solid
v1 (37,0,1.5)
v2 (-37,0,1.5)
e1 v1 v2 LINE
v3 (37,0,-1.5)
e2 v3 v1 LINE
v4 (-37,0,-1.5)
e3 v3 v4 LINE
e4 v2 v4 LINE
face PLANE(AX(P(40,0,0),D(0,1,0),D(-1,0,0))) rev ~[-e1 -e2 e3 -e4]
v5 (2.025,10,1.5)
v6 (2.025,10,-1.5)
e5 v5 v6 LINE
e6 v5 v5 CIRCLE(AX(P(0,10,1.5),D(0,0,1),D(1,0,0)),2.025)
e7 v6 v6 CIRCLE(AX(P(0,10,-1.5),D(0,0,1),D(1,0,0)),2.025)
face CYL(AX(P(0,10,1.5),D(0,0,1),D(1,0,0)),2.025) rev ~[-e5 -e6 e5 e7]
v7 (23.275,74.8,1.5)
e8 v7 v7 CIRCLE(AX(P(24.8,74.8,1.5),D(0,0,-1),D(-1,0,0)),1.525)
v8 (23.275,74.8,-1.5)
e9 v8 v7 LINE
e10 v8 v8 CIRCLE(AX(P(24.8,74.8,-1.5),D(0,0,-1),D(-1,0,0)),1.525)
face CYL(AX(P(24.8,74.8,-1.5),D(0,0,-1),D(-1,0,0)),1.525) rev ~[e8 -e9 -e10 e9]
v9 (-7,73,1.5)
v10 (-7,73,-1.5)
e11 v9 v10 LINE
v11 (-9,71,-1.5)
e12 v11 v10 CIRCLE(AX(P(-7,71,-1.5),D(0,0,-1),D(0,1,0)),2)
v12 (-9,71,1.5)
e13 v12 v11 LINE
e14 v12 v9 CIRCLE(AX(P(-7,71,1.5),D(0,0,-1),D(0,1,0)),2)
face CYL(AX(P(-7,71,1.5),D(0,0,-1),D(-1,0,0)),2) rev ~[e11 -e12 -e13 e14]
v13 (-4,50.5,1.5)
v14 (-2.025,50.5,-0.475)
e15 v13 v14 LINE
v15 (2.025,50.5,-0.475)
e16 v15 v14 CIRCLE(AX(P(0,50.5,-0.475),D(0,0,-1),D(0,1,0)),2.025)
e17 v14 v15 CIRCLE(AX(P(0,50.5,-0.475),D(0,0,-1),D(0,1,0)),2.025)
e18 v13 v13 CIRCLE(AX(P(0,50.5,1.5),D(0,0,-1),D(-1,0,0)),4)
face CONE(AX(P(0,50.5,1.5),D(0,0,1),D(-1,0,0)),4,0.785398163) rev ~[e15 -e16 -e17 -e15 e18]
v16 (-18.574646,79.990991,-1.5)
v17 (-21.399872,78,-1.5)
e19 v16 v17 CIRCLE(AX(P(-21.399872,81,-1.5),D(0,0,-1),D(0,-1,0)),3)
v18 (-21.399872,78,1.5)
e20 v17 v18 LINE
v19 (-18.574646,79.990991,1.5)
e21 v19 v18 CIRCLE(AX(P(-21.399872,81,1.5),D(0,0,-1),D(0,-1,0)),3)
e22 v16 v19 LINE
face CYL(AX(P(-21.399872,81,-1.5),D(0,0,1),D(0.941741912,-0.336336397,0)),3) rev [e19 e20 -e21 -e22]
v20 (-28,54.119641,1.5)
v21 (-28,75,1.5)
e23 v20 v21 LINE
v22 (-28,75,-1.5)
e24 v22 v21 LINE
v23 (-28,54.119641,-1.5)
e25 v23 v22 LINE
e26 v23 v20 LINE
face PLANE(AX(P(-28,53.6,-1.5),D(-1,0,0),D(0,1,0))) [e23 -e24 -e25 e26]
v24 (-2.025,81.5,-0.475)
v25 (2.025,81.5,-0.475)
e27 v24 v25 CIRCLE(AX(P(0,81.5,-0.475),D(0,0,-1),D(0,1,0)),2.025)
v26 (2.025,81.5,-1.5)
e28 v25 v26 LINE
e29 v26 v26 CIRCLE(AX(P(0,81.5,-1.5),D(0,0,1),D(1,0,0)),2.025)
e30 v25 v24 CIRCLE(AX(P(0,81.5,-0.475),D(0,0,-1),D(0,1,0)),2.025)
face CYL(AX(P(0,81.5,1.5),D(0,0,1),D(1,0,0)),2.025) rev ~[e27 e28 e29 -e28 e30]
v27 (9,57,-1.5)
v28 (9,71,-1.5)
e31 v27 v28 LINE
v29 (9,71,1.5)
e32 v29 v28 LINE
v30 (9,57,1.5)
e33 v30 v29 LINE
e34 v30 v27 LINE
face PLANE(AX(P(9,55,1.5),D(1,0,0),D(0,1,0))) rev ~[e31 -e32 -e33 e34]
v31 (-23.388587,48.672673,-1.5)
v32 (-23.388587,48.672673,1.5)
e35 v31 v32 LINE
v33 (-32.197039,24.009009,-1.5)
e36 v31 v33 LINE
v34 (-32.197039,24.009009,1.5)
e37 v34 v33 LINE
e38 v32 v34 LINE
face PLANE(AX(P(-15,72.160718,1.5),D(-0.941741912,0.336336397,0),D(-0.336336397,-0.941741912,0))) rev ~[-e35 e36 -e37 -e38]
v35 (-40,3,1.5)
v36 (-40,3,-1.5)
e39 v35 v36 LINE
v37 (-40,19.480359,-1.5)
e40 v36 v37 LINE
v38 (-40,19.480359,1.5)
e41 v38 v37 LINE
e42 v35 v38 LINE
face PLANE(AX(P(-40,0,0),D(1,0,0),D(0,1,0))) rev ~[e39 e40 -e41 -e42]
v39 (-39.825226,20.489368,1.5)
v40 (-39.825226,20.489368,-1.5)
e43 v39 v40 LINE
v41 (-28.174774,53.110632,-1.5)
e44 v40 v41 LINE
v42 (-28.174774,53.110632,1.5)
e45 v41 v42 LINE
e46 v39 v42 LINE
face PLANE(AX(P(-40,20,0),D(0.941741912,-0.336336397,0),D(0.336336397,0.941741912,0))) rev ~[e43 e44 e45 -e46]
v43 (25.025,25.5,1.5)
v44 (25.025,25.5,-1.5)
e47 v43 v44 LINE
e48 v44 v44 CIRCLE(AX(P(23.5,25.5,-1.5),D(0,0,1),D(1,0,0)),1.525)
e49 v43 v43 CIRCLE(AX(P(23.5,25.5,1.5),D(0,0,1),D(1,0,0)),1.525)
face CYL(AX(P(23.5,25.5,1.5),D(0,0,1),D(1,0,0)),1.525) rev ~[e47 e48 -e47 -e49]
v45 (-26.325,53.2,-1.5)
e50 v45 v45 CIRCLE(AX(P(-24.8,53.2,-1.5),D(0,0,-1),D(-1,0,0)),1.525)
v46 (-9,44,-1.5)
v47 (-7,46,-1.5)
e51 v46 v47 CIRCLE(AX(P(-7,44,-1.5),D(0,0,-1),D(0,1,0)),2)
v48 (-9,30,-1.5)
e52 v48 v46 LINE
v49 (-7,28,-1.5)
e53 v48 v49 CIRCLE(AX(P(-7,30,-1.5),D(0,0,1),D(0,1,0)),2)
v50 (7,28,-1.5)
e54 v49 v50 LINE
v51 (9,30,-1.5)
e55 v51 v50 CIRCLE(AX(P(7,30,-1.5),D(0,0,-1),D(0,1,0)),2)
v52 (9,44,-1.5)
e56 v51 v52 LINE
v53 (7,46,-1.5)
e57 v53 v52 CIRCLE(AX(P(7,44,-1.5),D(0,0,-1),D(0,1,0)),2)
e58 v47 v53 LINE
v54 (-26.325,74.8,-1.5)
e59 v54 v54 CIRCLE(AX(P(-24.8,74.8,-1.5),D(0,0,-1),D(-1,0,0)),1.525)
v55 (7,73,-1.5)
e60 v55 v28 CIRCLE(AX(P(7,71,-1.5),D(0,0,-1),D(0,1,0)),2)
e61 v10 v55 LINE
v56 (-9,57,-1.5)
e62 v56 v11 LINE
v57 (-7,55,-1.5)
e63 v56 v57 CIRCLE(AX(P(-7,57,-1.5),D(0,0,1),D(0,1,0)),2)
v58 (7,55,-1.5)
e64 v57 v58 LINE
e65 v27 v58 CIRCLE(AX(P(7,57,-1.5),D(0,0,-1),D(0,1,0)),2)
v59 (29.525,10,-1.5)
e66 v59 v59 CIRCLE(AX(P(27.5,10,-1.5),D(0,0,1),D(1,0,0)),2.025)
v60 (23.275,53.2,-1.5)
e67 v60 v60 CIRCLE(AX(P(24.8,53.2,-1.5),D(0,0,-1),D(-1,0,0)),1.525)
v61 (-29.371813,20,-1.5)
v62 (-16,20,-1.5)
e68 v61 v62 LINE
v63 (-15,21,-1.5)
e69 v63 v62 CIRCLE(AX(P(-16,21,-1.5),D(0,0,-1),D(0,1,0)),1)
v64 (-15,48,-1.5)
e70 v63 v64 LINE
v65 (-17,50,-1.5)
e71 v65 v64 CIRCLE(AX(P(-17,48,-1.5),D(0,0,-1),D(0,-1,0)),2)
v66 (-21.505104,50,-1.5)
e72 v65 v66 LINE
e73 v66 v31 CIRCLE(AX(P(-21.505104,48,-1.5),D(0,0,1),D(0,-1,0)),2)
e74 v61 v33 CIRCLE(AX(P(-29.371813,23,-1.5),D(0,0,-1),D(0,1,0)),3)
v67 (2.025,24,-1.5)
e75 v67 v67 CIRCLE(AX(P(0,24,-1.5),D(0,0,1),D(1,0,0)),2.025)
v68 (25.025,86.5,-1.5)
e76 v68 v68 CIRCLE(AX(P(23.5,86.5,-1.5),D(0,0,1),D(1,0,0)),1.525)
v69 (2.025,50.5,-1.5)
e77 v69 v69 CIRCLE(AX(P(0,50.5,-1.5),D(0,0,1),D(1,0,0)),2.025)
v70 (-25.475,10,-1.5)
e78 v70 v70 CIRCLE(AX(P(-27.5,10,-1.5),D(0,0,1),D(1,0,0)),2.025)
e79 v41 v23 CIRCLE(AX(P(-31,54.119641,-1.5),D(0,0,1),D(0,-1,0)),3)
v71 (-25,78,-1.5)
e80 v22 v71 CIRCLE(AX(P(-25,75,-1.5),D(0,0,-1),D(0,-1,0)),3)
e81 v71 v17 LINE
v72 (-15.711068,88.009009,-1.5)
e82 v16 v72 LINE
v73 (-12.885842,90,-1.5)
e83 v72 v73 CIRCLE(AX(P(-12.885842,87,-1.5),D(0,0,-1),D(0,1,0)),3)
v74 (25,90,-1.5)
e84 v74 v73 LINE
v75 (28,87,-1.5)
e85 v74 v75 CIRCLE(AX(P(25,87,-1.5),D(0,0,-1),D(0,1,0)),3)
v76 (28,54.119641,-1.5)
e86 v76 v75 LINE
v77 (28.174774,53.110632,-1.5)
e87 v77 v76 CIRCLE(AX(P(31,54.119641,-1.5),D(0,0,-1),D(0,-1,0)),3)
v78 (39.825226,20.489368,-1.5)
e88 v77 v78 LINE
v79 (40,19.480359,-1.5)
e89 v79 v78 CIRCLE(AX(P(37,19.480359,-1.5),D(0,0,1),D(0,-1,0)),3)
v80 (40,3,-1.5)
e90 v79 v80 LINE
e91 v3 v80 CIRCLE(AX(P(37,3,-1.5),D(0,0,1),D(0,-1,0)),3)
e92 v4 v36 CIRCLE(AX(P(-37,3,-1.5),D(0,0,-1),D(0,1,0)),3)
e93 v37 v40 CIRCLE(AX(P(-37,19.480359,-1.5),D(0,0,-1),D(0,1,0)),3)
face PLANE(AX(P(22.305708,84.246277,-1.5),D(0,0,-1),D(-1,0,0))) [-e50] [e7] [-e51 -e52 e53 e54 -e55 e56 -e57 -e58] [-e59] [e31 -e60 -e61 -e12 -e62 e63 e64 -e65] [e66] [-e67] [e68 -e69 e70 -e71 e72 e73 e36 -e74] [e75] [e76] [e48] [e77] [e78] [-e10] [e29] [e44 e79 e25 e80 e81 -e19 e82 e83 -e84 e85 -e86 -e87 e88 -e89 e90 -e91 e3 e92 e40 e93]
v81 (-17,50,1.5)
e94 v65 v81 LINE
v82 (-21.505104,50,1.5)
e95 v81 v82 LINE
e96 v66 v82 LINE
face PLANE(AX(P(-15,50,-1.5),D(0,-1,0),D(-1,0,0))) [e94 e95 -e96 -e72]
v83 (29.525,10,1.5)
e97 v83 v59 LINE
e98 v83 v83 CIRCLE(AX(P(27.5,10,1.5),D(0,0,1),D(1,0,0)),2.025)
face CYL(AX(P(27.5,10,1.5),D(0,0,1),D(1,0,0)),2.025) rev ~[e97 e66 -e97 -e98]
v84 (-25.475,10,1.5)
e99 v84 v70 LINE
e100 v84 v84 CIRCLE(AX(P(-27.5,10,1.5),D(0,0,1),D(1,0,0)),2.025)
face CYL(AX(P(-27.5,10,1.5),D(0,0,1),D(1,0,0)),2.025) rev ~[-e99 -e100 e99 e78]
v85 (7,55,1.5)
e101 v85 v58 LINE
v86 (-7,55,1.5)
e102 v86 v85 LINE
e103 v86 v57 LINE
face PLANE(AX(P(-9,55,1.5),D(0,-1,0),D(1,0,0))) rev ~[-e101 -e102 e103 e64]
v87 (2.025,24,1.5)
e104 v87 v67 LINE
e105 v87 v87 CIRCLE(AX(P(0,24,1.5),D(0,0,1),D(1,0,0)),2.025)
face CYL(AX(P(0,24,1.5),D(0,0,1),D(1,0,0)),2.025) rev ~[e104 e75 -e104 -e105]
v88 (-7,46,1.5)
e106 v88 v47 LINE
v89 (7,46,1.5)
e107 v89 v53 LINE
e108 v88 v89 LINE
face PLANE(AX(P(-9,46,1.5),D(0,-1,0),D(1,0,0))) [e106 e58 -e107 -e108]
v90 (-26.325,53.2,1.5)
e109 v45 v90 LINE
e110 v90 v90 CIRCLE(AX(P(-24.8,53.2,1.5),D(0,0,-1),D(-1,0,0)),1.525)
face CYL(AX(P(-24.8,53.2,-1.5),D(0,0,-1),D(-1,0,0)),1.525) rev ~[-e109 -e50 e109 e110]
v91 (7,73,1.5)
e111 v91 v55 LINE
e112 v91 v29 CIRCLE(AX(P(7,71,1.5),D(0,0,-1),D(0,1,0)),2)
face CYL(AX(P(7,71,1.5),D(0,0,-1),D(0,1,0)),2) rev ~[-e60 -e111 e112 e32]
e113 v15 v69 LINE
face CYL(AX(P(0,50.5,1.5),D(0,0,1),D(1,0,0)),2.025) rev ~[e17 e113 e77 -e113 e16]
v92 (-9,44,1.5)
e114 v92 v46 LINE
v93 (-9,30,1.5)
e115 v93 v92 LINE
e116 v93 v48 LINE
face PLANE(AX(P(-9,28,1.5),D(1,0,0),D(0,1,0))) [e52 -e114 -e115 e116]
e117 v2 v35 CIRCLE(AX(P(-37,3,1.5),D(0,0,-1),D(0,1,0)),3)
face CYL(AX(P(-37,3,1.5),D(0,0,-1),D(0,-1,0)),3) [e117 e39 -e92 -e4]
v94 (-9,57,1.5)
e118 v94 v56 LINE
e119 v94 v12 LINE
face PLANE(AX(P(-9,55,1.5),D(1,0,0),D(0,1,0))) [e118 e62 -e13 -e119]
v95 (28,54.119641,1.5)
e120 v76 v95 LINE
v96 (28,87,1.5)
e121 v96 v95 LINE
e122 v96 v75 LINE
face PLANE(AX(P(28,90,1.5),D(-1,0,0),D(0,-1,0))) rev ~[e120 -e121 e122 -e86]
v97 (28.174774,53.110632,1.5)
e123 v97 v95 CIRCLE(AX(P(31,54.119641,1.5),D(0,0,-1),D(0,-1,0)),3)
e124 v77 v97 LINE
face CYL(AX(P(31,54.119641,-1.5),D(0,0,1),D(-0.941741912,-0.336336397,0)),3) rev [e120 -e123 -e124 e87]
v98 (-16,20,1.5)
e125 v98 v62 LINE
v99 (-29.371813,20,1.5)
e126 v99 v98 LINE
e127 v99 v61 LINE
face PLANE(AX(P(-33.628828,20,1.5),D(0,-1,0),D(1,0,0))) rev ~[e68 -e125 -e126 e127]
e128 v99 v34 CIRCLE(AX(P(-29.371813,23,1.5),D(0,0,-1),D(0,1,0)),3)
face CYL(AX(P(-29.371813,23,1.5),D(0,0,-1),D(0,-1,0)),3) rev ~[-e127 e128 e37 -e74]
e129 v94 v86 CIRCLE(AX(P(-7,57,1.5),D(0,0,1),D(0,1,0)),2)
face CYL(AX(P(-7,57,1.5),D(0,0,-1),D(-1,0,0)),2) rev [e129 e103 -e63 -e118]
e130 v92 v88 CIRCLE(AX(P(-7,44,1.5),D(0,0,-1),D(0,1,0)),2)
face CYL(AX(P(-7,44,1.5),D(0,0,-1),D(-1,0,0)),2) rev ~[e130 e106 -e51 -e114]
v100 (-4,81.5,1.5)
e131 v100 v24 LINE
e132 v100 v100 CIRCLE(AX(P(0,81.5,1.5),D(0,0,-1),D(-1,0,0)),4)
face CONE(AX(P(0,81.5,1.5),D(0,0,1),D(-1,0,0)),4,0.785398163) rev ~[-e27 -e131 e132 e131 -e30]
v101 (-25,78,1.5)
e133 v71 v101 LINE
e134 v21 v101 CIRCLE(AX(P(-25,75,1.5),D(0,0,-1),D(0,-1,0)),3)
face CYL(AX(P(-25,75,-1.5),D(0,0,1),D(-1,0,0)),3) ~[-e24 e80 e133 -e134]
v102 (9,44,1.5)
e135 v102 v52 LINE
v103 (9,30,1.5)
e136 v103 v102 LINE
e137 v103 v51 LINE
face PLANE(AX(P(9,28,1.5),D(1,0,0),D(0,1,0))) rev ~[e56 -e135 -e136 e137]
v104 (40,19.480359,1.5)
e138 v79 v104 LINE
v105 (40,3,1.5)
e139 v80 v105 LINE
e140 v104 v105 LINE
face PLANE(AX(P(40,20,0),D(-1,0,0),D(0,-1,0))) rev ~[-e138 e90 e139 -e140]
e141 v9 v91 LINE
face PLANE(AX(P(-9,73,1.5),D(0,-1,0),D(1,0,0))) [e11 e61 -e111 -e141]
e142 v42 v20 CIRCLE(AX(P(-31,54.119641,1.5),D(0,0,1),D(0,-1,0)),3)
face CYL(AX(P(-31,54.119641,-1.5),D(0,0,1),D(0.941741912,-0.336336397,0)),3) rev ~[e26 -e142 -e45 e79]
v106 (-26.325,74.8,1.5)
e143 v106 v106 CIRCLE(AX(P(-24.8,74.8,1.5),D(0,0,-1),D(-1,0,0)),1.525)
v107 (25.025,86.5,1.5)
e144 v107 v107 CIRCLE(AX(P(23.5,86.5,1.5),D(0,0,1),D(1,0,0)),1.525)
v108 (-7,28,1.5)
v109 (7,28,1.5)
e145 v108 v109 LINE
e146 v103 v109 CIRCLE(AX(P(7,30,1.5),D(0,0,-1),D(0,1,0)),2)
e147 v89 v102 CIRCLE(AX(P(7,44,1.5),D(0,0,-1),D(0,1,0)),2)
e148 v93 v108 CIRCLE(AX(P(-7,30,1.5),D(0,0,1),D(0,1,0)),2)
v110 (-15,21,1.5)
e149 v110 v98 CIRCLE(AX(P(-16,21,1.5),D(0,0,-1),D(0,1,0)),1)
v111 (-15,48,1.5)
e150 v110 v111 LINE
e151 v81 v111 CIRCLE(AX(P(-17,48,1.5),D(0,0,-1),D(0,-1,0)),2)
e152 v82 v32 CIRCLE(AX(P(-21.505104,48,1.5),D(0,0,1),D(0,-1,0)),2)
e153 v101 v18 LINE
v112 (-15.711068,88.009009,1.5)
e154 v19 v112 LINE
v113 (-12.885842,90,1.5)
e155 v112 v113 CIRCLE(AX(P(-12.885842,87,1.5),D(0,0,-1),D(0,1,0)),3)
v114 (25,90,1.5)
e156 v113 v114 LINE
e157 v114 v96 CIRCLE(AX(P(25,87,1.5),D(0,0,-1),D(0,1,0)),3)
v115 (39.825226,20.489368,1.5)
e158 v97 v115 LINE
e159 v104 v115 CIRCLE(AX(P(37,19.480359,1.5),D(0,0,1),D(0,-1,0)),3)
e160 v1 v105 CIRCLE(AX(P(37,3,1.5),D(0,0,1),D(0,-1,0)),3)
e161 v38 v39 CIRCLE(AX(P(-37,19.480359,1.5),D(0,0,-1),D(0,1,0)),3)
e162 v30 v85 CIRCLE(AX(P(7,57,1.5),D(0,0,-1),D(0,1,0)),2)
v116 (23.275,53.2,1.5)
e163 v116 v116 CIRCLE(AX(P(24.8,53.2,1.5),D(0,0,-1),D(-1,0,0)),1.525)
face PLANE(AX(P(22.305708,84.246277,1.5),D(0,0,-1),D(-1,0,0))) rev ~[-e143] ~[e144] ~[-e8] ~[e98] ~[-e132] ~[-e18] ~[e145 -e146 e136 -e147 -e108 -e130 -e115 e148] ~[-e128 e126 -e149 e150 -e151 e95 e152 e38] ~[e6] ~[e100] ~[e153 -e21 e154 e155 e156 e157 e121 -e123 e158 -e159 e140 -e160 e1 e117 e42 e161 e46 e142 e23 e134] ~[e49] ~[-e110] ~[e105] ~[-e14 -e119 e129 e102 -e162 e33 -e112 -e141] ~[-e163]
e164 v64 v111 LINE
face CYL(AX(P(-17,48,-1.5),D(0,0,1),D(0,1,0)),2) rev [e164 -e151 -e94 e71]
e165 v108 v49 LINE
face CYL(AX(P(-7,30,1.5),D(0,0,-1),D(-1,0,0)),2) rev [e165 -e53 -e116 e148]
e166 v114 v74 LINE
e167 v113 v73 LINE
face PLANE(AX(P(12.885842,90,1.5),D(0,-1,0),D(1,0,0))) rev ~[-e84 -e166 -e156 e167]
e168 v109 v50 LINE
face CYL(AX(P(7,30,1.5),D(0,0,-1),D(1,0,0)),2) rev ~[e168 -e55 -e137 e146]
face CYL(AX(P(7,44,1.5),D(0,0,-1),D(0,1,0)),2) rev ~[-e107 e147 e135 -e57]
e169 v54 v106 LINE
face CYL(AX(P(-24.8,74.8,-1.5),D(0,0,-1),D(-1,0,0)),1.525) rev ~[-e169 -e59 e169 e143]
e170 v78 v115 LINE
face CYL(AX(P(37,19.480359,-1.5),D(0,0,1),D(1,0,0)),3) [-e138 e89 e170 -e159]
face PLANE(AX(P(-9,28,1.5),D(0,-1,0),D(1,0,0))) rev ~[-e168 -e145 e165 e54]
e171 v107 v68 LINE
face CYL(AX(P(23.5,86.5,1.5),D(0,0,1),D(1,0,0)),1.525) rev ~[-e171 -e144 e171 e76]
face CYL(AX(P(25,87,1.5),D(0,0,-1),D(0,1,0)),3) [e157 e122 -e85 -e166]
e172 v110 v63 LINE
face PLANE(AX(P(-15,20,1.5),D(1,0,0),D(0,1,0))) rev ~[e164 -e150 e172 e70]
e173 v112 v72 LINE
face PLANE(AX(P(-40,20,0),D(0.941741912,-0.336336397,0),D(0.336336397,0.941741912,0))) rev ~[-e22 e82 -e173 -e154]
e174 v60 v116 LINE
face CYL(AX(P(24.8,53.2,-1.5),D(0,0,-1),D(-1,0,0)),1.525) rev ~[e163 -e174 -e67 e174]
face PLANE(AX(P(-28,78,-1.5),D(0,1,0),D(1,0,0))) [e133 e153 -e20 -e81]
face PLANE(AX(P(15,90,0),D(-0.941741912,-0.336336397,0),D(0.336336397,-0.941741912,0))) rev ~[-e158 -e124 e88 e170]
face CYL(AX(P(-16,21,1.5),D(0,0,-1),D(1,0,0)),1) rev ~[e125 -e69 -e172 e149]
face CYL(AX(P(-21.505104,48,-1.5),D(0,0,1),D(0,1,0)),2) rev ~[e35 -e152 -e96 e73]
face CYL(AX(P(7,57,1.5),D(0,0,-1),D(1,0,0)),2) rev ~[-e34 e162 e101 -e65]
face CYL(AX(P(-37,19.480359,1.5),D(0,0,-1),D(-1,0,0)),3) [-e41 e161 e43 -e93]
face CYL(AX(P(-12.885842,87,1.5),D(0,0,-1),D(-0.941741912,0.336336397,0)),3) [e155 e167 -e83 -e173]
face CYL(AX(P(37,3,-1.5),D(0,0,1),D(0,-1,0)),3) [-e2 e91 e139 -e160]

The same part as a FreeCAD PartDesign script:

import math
import FreeCAD as App
import Part
import Sketcher
from FreeCAD import Vector
Q = App.Units.Quantity


def edges_at(feature, points):
    """Names of the edges that pass closest to the given points."""
    edges = feature.Shape.Edges
    near = lambda p: min(range(len(edges)), key=lambda i: edges[i].distToShape(Part.Vertex(*p))[0])
    return sorted({f"Edge{near(p) + 1}" for p in points})

doc = App.newDocument("Part")
body = doc.addObject("PartDesign::Body", "Body")

sketch1 = doc.addObject("Sketcher::SketchObject", "Sketch")
body.addObject(sketch1)
sketch1.AttachmentSupport = (doc.XY_Plane, [""])
sketch1.MapMode = "FlatFace"
sketch1.addGeometry(Part.LineSegment(Vector(-40, 0, 0), Vector(40, 0, 0)), False)
sketch1.addGeometry(Part.LineSegment(Vector(40, 0, 0), Vector(40, 20, 0)), False)
sketch1.addGeometry(Part.LineSegment(Vector(40, 20, 0), Vector(15, 90, 0)), False)
sketch1.addGeometry(Part.LineSegment(Vector(15, 90, 0), Vector(-15, 90, 0)), False)
sketch1.addGeometry(Part.LineSegment(Vector(-15, 90, 0), Vector(-40, 20, 0)), False)
sketch1.addGeometry(Part.LineSegment(Vector(-40, 20, 0), Vector(-40, 0, 0)), False)
sketch1.addConstraint(Sketcher.Constraint("Coincident", 0, 2, 1, 1))
sketch1.addConstraint(Sketcher.Constraint("Coincident", 1, 2, 2, 1))
sketch1.addConstraint(Sketcher.Constraint("Coincident", 2, 2, 3, 1))
sketch1.addConstraint(Sketcher.Constraint("Coincident", 3, 2, 4, 1))
sketch1.addConstraint(Sketcher.Constraint("Coincident", 4, 2, 5, 1))
sketch1.addConstraint(Sketcher.Constraint("Coincident", 5, 2, 0, 1))
sketch1.addConstraint(Sketcher.Constraint("Horizontal", 0))
sketch1.addConstraint(Sketcher.Constraint("Vertical", 1))
sketch1.addConstraint(Sketcher.Constraint("Horizontal", 3))
sketch1.addConstraint(Sketcher.Constraint("Vertical", 5))
sketch1.addConstraint(Sketcher.Constraint("Symmetric", 0, 2, 5, 2, -1, 1))
sketch1.addConstraint(Sketcher.Constraint("Horizontal", 1, 2, 4, 2))
sketch1.addConstraint(Sketcher.Constraint("Equal", 2, 4))
sketch1.addConstraint(Sketcher.Constraint("DistanceX", 0, 1, 0, 2, Q("80 mm")))
sketch1.addConstraint(Sketcher.Constraint("DistanceX", 3, 2, 3, 1, Q("30 mm")))
sketch1.addConstraint(Sketcher.Constraint("DistanceY", 1, 1, 1, 2, Q("20 mm")))
sketch1.addConstraint(Sketcher.Constraint("DistanceY", -1, 1, 2, 2, Q("90 mm")))
pad1 = doc.addObject("PartDesign::Pad", "Pad")
body.addObject(pad1)
pad1.Profile = sketch1
pad1.Length = 3
pad1.Midplane = True

sketch2 = doc.addObject("Sketcher::SketchObject", "Sketch001")
body.addObject(sketch2)
sketch2.AttachmentSupport = (doc.XY_Plane, [""])
sketch2.MapMode = "FlatFace"
sketch2.AttachmentOffset = App.Placement(Vector(0, 0, 1.5), App.Rotation())
sketch2.addGeometry(Part.LineSegment(Vector(-15, 72, 0), Vector(-34, 20, 0)), False)
sketch2.addGeometry(Part.LineSegment(Vector(-34, 20, 0), Vector(-15, 20, 0)), False)
sketch2.addGeometry(Part.LineSegment(Vector(-15, 20, 0), Vector(-15, 72, 0)), False)
sketch2.addGeometry(Part.LineSegment(Vector(-9, 73, 0), Vector(-9, 55, 0)), False)
sketch2.addGeometry(Part.LineSegment(Vector(-9, 55, 0), Vector(9, 55, 0)), False)
sketch2.addGeometry(Part.LineSegment(Vector(9, 55, 0), Vector(9, 73, 0)), False)
sketch2.addGeometry(Part.LineSegment(Vector(9, 73, 0), Vector(-9, 73, 0)), False)
sketch2.addGeometry(Part.LineSegment(Vector(-9, 46, 0), Vector(-9, 28, 0)), False)
sketch2.addGeometry(Part.LineSegment(Vector(-9, 28, 0), Vector(9, 28, 0)), False)
sketch2.addGeometry(Part.LineSegment(Vector(9, 28, 0), Vector(9, 46, 0)), False)
sketch2.addGeometry(Part.LineSegment(Vector(9, 46, 0), Vector(-9, 46, 0)), False)
sketch2.addConstraint(Sketcher.Constraint("Coincident", 0, 2, 1, 1))
sketch2.addConstraint(Sketcher.Constraint("Coincident", 1, 2, 2, 1))
sketch2.addConstraint(Sketcher.Constraint("Coincident", 2, 2, 0, 1))
sketch2.addConstraint(Sketcher.Constraint("Coincident", 3, 2, 4, 1))
sketch2.addConstraint(Sketcher.Constraint("Coincident", 4, 2, 5, 1))
sketch2.addConstraint(Sketcher.Constraint("Coincident", 5, 2, 6, 1))
sketch2.addConstraint(Sketcher.Constraint("Coincident", 6, 2, 3, 1))
sketch2.addConstraint(Sketcher.Constraint("Coincident", 7, 2, 8, 1))
sketch2.addConstraint(Sketcher.Constraint("Coincident", 8, 2, 9, 1))
sketch2.addConstraint(Sketcher.Constraint("Coincident", 9, 2, 10, 1))
sketch2.addConstraint(Sketcher.Constraint("Coincident", 10, 2, 7, 1))
sketch2.addConstraint(Sketcher.Constraint("Horizontal", 1))
sketch2.addConstraint(Sketcher.Constraint("Vertical", 2))
sketch2.addConstraint(Sketcher.Constraint("Vertical", 3))
sketch2.addConstraint(Sketcher.Constraint("Horizontal", 4))
sketch2.addConstraint(Sketcher.Constraint("Vertical", 5))
sketch2.addConstraint(Sketcher.Constraint("Horizontal", 6))
sketch2.addConstraint(Sketcher.Constraint("Vertical", 7))
sketch2.addConstraint(Sketcher.Constraint("Horizontal", 8))
sketch2.addConstraint(Sketcher.Constraint("Vertical", 9))
sketch2.addConstraint(Sketcher.Constraint("Horizontal", 10))
sketch2.addConstraint(Sketcher.Constraint("Vertical", 6, 2, 7, 2))
sketch2.addConstraint(Sketcher.Constraint("Vertical", 5, 2, 8, 2))
sketch2.addConstraint(Sketcher.Constraint("Equal", 10, 3))
sketch2.addConstraint(Sketcher.Constraint("Equal", 5, 7))
sketch2.addConstraint(Sketcher.Constraint("DistanceX", 4, 1, 4, 2, Q("18 mm")))
sketch2.addConstraint(Sketcher.Constraint("DistanceY", -1, 1, 0, 2, Q("20 mm")))
sketch2.addConstraint(Sketcher.Constraint("DistanceX", 1, 2, -1, 1, Q("15 mm")))
sketch2.addConstraint(Sketcher.Constraint("DistanceX", 3, 2, -1, 1, Q("9 mm")))
sketch2.addConstraint(Sketcher.Constraint("DistanceY", -1, 1, 3, 2, Q("55 mm")))
sketch2.addConstraint(Sketcher.Constraint("DistanceY", -1, 1, 7, 2, Q("28 mm")))
sketch2.addConstraint(Sketcher.Constraint("DistanceX", 1, 1, 1, 2, Q("18.628828 mm")))
sketch2.addConstraint(Sketcher.Constraint("DistanceY", 2, 1, 2, 2, Q("52.160718 mm")))
pocket1 = doc.addObject("PartDesign::Pocket", "Pocket")
body.addObject(pocket1)
pocket1.Profile = sketch2
pocket1.Length = 3
doc.recompute()

fillet = doc.addObject("PartDesign::Fillet", "Fillet")
body.addObject(fillet)
fillet.Base = (pocket1, edges_at(pocket1, [(-15, 20, 0), (-15, 72.161, 0)]))
fillet.Radius = 1
doc.recompute()

fillet2 = doc.addObject("PartDesign::Fillet", "Fillet001")
body.addObject(fillet2)
fillet2.Base = (fillet, edges_at(fillet, [
    (-9, 46, 0),
    (-9, 28, 0),
    (9, 28, 0),
    (9, 46, 0),
    (-9, 73, 0),
    (-9, 55, 0),
    (9, 55, 0),
    (9, 73, 0),
]))
fillet2.Radius = 2
doc.recompute()

fillet3 = doc.addObject("PartDesign::Fillet", "Fillet002")
body.addObject(fillet3)
fillet3.Base = (fillet2, edges_at(fillet2, [
    (40, 0, 0),
    (-40, 0, 0),
    (-40, 20, 0),
    (-15, 90, 0),
    (15, 90, 0),
    (40, 20, 0),
]))
fillet3.Radius = 3

sketch3 = doc.addObject("Sketcher::SketchObject", "Sketch002")
body.addObject(sketch3)
sketch3.AttachmentSupport = (doc.XY_Plane, [""])
sketch3.MapMode = "FlatFace"
sketch3.AttachmentOffset = App.Placement(Vector(0, 0, 1.5), App.Rotation())
sketch3.addGeometry(Part.Circle(Vector(-27.5, 10, 0), Vector(0, 0, 1), 2), False)
sketch3.addGeometry(Part.Circle(Vector(27.5, 10, 0), Vector(0, 0, 1), 2), False)
sketch3.addConstraint(Sketcher.Constraint("Equal", 0, 1))
sketch3.addConstraint(Sketcher.Constraint("Symmetric", 0, 3, 1, 3, -2))
sketch3.addConstraint(Sketcher.Constraint("Diameter", 0, Q("4.05 mm")))
sketch3.addConstraint(Sketcher.Constraint("DistanceY", -1, 1, 0, 3, Q("10 mm")))
sketch3.addConstraint(Sketcher.Constraint("DistanceX", 0, 3, 1, 3, Q("55 mm")))
pocket2 = doc.addObject("PartDesign::Pocket", "Pocket001")
body.addObject(pocket2)
pocket2.Profile = sketch3
pocket2.Type = "ThroughAll"
pocket2.Midplane = True

sketch4 = doc.addObject("Sketcher::SketchObject", "Sketch003")
body.addObject(sketch4)
sketch4.AttachmentSupport = (doc.XY_Plane, [""])
sketch4.MapMode = "FlatFace"
sketch4.AttachmentOffset = App.Placement(Vector(0, 0, 1.5), App.Rotation())
sketch4.addGeometry(Part.Circle(Vector(0, 10, 0), Vector(0, 0, 1), 2), False)
sketch4.addConstraint(Sketcher.Constraint("PointOnObject", 0, 3, -2))
sketch4.addConstraint(Sketcher.Constraint("Diameter", 0, Q("4.05 mm")))
sketch4.addConstraint(Sketcher.Constraint("DistanceY", -1, 1, 0, 3, Q("10 mm")))
pocket3 = doc.addObject("PartDesign::Pocket", "Pocket002")
body.addObject(pocket3)
pocket3.Profile = sketch4
pocket3.Type = "ThroughAll"
pocket3.Midplane = True

sketch5 = doc.addObject("Sketcher::SketchObject", "Sketch004")
body.addObject(sketch5)
sketch5.AttachmentSupport = (doc.XY_Plane, [""])
sketch5.MapMode = "FlatFace"
sketch5.AttachmentOffset = App.Placement(Vector(0, 0, 1.5), App.Rotation())
sketch5.addGeometry(Part.Circle(Vector(0, 24, 0), Vector(0, 0, 1), 2), False)
sketch5.addGeometry(Part.Circle(Vector(0, 50.5, 0), Vector(0, 0, 1), 2), False)
sketch5.addGeometry(Part.Circle(Vector(0, 81.5, 0), Vector(0, 0, 1), 2), False)
sketch5.addConstraint(Sketcher.Constraint("Equal", 0, 1))
sketch5.addConstraint(Sketcher.Constraint("Equal", 1, 2))
sketch5.addConstraint(Sketcher.Constraint("PointOnObject", 0, 3, -2))
sketch5.addConstraint(Sketcher.Constraint("PointOnObject", 1, 3, -2))
sketch5.addConstraint(Sketcher.Constraint("PointOnObject", 2, 3, -2))
sketch5.addConstraint(Sketcher.Constraint("Diameter", 0, Q("4.05 mm")))
sketch5.addConstraint(Sketcher.Constraint("DistanceY", -1, 1, 0, 3, Q("24 mm")))
sketch5.addConstraint(Sketcher.Constraint("DistanceY", 1, 3, 2, 3, Q("31 mm")))
sketch5.addConstraint(Sketcher.Constraint("DistanceY", -1, 1, 1, 3, Q("50.5 mm")))
pocket4 = doc.addObject("PartDesign::Pocket", "Pocket003")
body.addObject(pocket4)
pocket4.Profile = sketch5
pocket4.Type = "ThroughAll"
pocket4.Midplane = True
doc.recompute()

fillet4 = doc.addObject("PartDesign::Fillet", "Fillet003")
body.addObject(fillet4)
fillet4.Base = (pocket4, edges_at(pocket4, [(-33.629, 20, 0)]))
fillet4.Radius = 3

sketch6 = doc.addObject("Sketcher::SketchObject", "Sketch005")
body.addObject(sketch6)
sketch6.AttachmentSupport = (doc.XY_Plane, [""])
sketch6.MapMode = "FlatFace"
sketch6.AttachmentOffset = App.Placement(Vector(0, 0, -1.5), App.Rotation())
sketch6.addGeometry(Part.LineSegment(Vector(-15, 66.4, 0), Vector(-15, 50, 0)), False)
sketch6.addGeometry(Part.LineSegment(Vector(-15, 50, 0), Vector(-22.9, 50, 0)), False)
sketch6.addGeometry(Part.LineSegment(Vector(-22.9, 50, 0), Vector(-16.9, 66.7, 0)), False)
sketch6.addGeometry(Part.ArcOfCircle(Part.Circle(Vector(-16, 66.4, 0), Vector(0, 0, 1), 1), math.radians(0), math.radians(160)), False)
sketch6.addGeometry(Part.LineSegment(Vector(28, 78, 0), Vector(28, 53.6, 0)), False)
sketch6.addGeometry(Part.LineSegment(Vector(28, 53.6, 0), Vector(19.3, 78, 0)), False)
sketch6.addGeometry(Part.LineSegment(Vector(19.3, 78, 0), Vector(28, 78, 0)), False)
sketch6.addGeometry(Part.LineSegment(Vector(-28, 78, 0), Vector(-19.3, 78, 0)), False)
sketch6.addGeometry(Part.LineSegment(Vector(-19.3, 78, 0), Vector(-28, 53.6, 0)), False)
sketch6.addGeometry(Part.LineSegment(Vector(-28, 53.6, 0), Vector(-28, 78, 0)), False)
sketch6.addConstraint(Sketcher.Constraint("Coincident", 0, 2, 1, 1))
sketch6.addConstraint(Sketcher.Constraint("Coincident", 1, 2, 2, 1))
sketch6.addConstraint(Sketcher.Constraint("Tangent", 2, 2, 3, 2))
sketch6.addConstraint(Sketcher.Constraint("Tangent", 3, 1, 0, 1))
sketch6.addConstraint(Sketcher.Constraint("Coincident", 4, 2, 5, 1))
sketch6.addConstraint(Sketcher.Constraint("Coincident", 5, 2, 6, 1))
sketch6.addConstraint(Sketcher.Constraint("Coincident", 6, 2, 4, 1))
sketch6.addConstraint(Sketcher.Constraint("Coincident", 7, 2, 8, 1))
sketch6.addConstraint(Sketcher.Constraint("Coincident", 8, 2, 9, 1))
sketch6.addConstraint(Sketcher.Constraint("Coincident", 9, 2, 7, 1))
sketch6.addConstraint(Sketcher.Constraint("Vertical", 0))
sketch6.addConstraint(Sketcher.Constraint("Horizontal", 1))
sketch6.addConstraint(Sketcher.Constraint("Vertical", 4))
sketch6.addConstraint(Sketcher.Constraint("Horizontal", 6))
sketch6.addConstraint(Sketcher.Constraint("Horizontal", 7))
sketch6.addConstraint(Sketcher.Constraint("Vertical", 9))
sketch6.addConstraint(Sketcher.Constraint("Symmetric", 5, 2, 7, 2, -2))
sketch6.addConstraint(Sketcher.Constraint("Symmetric", 4, 2, 8, 2, -2))
sketch6.addConstraint(Sketcher.Constraint("Parallel", 2, 8))
sketch6.addConstraint(Sketcher.Constraint("Radius", 3, Q("1 mm")))
sketch6.addConstraint(Sketcher.Constraint("DistanceY", 4, 2, 4, 1, Q("24.4 mm")))
sketch6.addConstraint(Sketcher.Constraint("DistanceX", 3, 3, -1, 1, Q("16 mm")))
sketch6.addConstraint(Sketcher.Constraint("DistanceY", -1, 1, 0, 2, Q("50 mm")))
sketch6.addConstraint(Sketcher.Constraint("DistanceX", -1, 1, 4, 2, Q("28 mm")))
sketch6.addConstraint(Sketcher.Constraint("DistanceY", -1, 1, 5, 2, Q("78 mm")))
sketch6.addConstraint(Sketcher.Constraint("DistanceX", 1, 2, 1, 1, Q("7.914542 mm")))
sketch6.addConstraint(Sketcher.Constraint("DistanceX", 1, 2, 2, 2, Q("5.9728 mm")))
pad2 = doc.addObject("PartDesign::Pad", "Pad001")
body.addObject(pad2)
pad2.Profile = sketch6
pad2.Length = 3
doc.recompute()

fillet5 = doc.addObject("PartDesign::Fillet", "Fillet004")
body.addObject(fillet5)
fillet5.Base = (pad2, edges_at(pad2, [
    (28, 53.6, 0),
    (-28, 78, 0),
    (19.286, 78, 0),
    (28, 78, 0),
    (-19.286, 78, 0),
    (-28, 53.6, 0),
]))
fillet5.Radius = 3

sketch7 = doc.addObject("Sketcher::SketchObject", "Sketch006")
body.addObject(sketch7)
sketch7.AttachmentSupport = (doc.XY_Plane, [""])
sketch7.MapMode = "FlatFace"
sketch7.AttachmentOffset = App.Placement(Vector(0, 0, -1.5), App.Rotation())
sketch7.addGeometry(Part.Circle(Vector(-24.8, 74.8, 0), Vector(0, 0, 1), 1.5), False)
sketch7.addGeometry(Part.Circle(Vector(-24.8, 53.2, 0), Vector(0, 0, 1), 1.5), False)
sketch7.addGeometry(Part.Circle(Vector(24.8, 53.2, 0), Vector(0, 0, 1), 1.5), False)
sketch7.addGeometry(Part.Circle(Vector(24.8, 74.8, 0), Vector(0, 0, 1), 1.5), False)
sketch7.addConstraint(Sketcher.Constraint("Equal", 0, 1))
sketch7.addConstraint(Sketcher.Constraint("Equal", 1, 2))
sketch7.addConstraint(Sketcher.Constraint("Equal", 2, 3))
sketch7.addConstraint(Sketcher.Constraint("Symmetric", 1, 3, 2, 3, -2))
sketch7.addConstraint(Sketcher.Constraint("Symmetric", 0, 3, 3, 3, -2))
sketch7.addConstraint(Sketcher.Constraint("Vertical", 0, 3, 1, 3))
sketch7.addConstraint(Sketcher.Constraint("Diameter", 0, Q("3.05 mm")))
sketch7.addConstraint(Sketcher.Constraint("DistanceX", 0, 3, -1, 1, Q("24.8 mm")))
sketch7.addConstraint(Sketcher.Constraint("DistanceY", -1, 1, 0, 3, Q("74.8 mm")))
sketch7.addConstraint(Sketcher.Constraint("DistanceY", -1, 1, 1, 3, Q("53.2 mm")))
pocket5 = doc.addObject("PartDesign::Pocket", "Pocket004")
body.addObject(pocket5)
pocket5.Profile = sketch7
pocket5.Length = 3
pocket5.Reversed = True

sketch8 = doc.addObject("Sketcher::SketchObject", "Sketch007")
body.addObject(sketch8)
sketch8.AttachmentSupport = (doc.XY_Plane, [""])
sketch8.MapMode = "FlatFace"
sketch8.AttachmentOffset = App.Placement(Vector(0, 0, 1.5), App.Rotation())
sketch8.addGeometry(Part.Circle(Vector(0, 81.5, 0), Vector(0, 0, 1), 2), False)
sketch8.addGeometry(Part.Circle(Vector(0, 50.5, 0), Vector(0, 0, 1), 2), False)
sketch8.addConstraint(Sketcher.Constraint("Equal", 0, 1))
sketch8.addConstraint(Sketcher.Constraint("PointOnObject", 0, 3, -2))
sketch8.addConstraint(Sketcher.Constraint("PointOnObject", 1, 3, -2))
sketch8.addConstraint(Sketcher.Constraint("Diameter", 0, Q("4.05 mm")))
sketch8.addConstraint(Sketcher.Constraint("DistanceY", 1, 3, 0, 3, Q("31 mm")))
sketch8.addConstraint(Sketcher.Constraint("DistanceY", -1, 1, 0, 3, Q("81.5 mm")))
doc.recompute()
hole = doc.addObject("PartDesign::Hole", "Hole")
body.addObject(hole)
hole.Profile = sketch8
hole.ThreadType = "None"
hole.Diameter = 4.05
hole.DepthType = "Dimension"
hole.Depth = 100
hole.DrillPoint = "Flat"
hole.HoleCutType = "Countersink"
hole.HoleCutDiameter = 8
hole.HoleCutCountersinkAngle = 90

sketch9 = doc.addObject("Sketcher::SketchObject", "Sketch008")
body.addObject(sketch9)
sketch9.AttachmentSupport = (doc.XY_Plane, [""])
sketch9.MapMode = "FlatFace"
sketch9.AttachmentOffset = App.Placement(Vector(0, 0, 1.5), App.Rotation())
sketch9.addGeometry(Part.LineSegment(Vector(28, 90, 0), Vector(12.9, 90, 0)), False)
sketch9.addGeometry(Part.ArcOfCircle(Part.Circle(Vector(12.9, 87, 0), Vector(0, 0, 1), 3), math.radians(20), math.radians(90)), False)
sketch9.addGeometry(Part.LineSegment(Vector(15.7, 88, 0), Vector(18.6, 80, 0)), False)
sketch9.addGeometry(Part.ArcOfCircle(Part.Circle(Vector(21.4, 81, 0), Vector(0, 0, 1), 3), math.radians(-160), math.radians(-90)), False)
sketch9.addGeometry(Part.LineSegment(Vector(21.4, 78, 0), Vector(25, 78, 0)), False)
sketch9.addGeometry(Part.ArcOfCircle(Part.Circle(Vector(25, 75, 0), Vector(0, 0, 1), 3), math.radians(0), math.radians(90)), False)
sketch9.addGeometry(Part.LineSegment(Vector(28, 75, 0), Vector(28, 90, 0)), False)
sketch9.addConstraint(Sketcher.Constraint("Tangent", 0, 2, 1, 2))
sketch9.addConstraint(Sketcher.Constraint("Tangent", 1, 1, 2, 1))
sketch9.addConstraint(Sketcher.Constraint("Tangent", 2, 2, 3, 1))
sketch9.addConstraint(Sketcher.Constraint("Tangent", 3, 2, 4, 1))
sketch9.addConstraint(Sketcher.Constraint("Tangent", 4, 2, 5, 2))
sketch9.addConstraint(Sketcher.Constraint("Tangent", 5, 1, 6, 1))
sketch9.addConstraint(Sketcher.Constraint("Coincident", 6, 2, 0, 1))
sketch9.addConstraint(Sketcher.Constraint("Horizontal", 0))
sketch9.addConstraint(Sketcher.Constraint("Horizontal", 4))
sketch9.addConstraint(Sketcher.Constraint("Vertical", 6))
sketch9.addConstraint(Sketcher.Constraint("Equal", 1, 3))
sketch9.addConstraint(Sketcher.Constraint("Equal", 3, 5))
sketch9.addConstraint(Sketcher.Constraint("Radius", 1, Q("3 mm")))
sketch9.addConstraint(Sketcher.Constraint("DistanceY", 6, 1, 6, 2, Q("15 mm")))
sketch9.addConstraint(Sketcher.Constraint("DistanceY", -1, 1, 1, 3, Q("87 mm")))
sketch9.addConstraint(Sketcher.Constraint("DistanceX", -1, 1, 5, 3, Q("25 mm")))
sketch9.addConstraint(Sketcher.Constraint("DistanceX", 4, 1, 4, 2, Q("3.600128 mm")))
sketch9.addConstraint(Sketcher.Constraint("Distance", 2, Q("8.514029 mm")))
pad3 = doc.addObject("PartDesign::Pad", "Pad002")
body.addObject(pad3)
pad3.Profile = sketch9
pad3.Length = 3
pad3.Reversed = True
doc.recompute()

fillet6 = doc.addObject("PartDesign::Fillet", "Fillet005")
body.addObject(fillet6)
fillet6.Base = (pad3, edges_at(pad3, [(28, 90, 0)]))
fillet6.Radius = 3

sketch10 = doc.addObject("Sketcher::SketchObject", "Sketch009")
body.addObject(sketch10)
sketch10.AttachmentSupport = (doc.XY_Plane, [""])
sketch10.MapMode = "FlatFace"
sketch10.AttachmentOffset = App.Placement(Vector(0, 0, 1.5), App.Rotation())
sketch10.addGeometry(Part.Circle(Vector(23.5, 86.5, 0), Vector(0, 0, 1), 1.5), False)
sketch10.addGeometry(Part.Circle(Vector(23.5, 25.5, 0), Vector(0, 0, 1), 1.5), False)
sketch10.addConstraint(Sketcher.Constraint("Equal", 0, 1))
sketch10.addConstraint(Sketcher.Constraint("Vertical", 0, 3, 1, 3))
sketch10.addConstraint(Sketcher.Constraint("Diameter", 0, Q("3.05 mm")))
sketch10.addConstraint(Sketcher.Constraint("DistanceY", 1, 3, 0, 3, Q("61 mm")))
sketch10.addConstraint(Sketcher.Constraint("DistanceX", -1, 1, 0, 3, Q("23.5 mm")))
sketch10.addConstraint(Sketcher.Constraint("DistanceY", -1, 1, 0, 3, Q("86.5 mm")))
pocket6 = doc.addObject("PartDesign::Pocket", "Pocket005")
body.addObject(pocket6)
pocket6.Profile = sketch10
pocket6.Type = "ThroughAll"
pocket6.Midplane = True
doc.recompute()

fillet7 = doc.addObject("PartDesign::Fillet", "Fillet006")
body.addObject(fillet7)
fillet7.Base = (pocket6, edges_at(pocket6, [(-22.915, 50, 0), (-15, 50, 0)]))
fillet7.Radius = 2

doc.recompute()
